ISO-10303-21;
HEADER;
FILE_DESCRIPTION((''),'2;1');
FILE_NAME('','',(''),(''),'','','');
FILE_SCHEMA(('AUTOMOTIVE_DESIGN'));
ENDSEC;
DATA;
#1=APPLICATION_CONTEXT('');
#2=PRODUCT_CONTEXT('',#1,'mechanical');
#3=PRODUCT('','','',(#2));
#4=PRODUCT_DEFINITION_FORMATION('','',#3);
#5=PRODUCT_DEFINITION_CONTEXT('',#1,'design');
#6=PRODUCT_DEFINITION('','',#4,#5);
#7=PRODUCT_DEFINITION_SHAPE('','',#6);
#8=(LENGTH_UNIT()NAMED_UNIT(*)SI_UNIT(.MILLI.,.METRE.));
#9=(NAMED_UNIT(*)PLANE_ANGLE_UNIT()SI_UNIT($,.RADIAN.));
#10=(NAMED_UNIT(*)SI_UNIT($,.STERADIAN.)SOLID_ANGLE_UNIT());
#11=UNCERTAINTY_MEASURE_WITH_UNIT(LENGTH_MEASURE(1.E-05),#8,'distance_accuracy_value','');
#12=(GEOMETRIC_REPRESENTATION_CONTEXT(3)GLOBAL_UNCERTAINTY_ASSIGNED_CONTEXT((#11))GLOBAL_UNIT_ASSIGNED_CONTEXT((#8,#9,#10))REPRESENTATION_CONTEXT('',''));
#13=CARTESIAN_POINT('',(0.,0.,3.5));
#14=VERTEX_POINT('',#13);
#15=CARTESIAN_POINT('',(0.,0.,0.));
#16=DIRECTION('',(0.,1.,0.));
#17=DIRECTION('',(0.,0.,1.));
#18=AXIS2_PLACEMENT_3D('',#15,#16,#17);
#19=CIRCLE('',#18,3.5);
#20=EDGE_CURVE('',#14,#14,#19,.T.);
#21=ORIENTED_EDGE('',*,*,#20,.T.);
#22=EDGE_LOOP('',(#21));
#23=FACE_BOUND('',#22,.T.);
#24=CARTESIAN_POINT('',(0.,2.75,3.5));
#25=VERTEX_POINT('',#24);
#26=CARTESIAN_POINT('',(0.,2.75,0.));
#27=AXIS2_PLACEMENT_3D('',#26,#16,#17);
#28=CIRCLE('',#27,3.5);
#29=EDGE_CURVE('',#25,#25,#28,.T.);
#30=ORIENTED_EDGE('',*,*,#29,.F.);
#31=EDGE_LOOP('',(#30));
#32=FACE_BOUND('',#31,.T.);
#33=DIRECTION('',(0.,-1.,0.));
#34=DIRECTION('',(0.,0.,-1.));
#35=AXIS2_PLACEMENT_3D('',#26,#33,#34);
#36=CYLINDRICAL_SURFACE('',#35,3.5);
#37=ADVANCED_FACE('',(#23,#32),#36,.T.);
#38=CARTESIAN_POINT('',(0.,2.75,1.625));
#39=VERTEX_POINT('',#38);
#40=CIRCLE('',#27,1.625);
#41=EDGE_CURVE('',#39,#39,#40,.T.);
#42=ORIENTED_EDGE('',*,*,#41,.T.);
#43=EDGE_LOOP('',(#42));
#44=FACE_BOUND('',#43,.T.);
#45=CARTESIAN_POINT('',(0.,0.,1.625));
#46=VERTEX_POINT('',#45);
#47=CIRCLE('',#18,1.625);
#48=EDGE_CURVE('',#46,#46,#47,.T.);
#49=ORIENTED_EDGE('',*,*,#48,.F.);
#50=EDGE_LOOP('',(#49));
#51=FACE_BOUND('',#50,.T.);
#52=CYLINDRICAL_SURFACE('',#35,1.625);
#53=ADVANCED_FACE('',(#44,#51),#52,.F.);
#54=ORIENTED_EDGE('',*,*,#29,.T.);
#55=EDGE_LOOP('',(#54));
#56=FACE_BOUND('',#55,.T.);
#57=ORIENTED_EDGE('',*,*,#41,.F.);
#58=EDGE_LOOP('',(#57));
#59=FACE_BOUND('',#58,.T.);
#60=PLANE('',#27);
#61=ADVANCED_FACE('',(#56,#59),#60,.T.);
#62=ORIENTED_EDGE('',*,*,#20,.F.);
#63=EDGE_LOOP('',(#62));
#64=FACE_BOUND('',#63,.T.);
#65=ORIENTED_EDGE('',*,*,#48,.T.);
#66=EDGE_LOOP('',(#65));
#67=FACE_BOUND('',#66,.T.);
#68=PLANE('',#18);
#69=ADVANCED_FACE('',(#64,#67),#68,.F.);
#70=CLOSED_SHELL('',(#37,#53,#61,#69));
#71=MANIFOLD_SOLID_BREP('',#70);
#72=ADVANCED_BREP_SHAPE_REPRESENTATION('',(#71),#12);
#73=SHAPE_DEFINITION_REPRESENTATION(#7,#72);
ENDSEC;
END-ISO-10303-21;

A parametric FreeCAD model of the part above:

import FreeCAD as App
import Part
import Sketcher

V = App.Vector
Q = App.Units.Quantity

doc = App.newDocument("Part")
body = doc.addObject("PartDesign::Body", "Body")

sketch1 = body.newObject("Sketcher::SketchObject", "Sketch")
sketch1.AttachmentSupport = (doc.getObject("XZ_Plane"), [""])
sketch1.MapMode = "FlatFace"
sketch1.addGeometry(Part.Circle(V(0, 0, 0), V(0, 0, 1), 3.5), False)
sketch1.addGeometry(Part.Circle(V(0, 0, 0), V(0, 0, 1), 1.6), False)
sketch1.addConstraint(Sketcher.Constraint("Coincident", 0, 3, -1, 1))
sketch1.addConstraint(Sketcher.Constraint("Coincident", 1, 3, -1, 1))
sketch1.addConstraint(Sketcher.Constraint("Diameter", 0, Q("7 mm")))
sketch1.addConstraint(Sketcher.Constraint("Diameter", 1, Q("3.25 mm")))
pad1 = body.newObject("PartDesign::Pad", "Pad")
pad1.Profile = sketch1
pad1.Length = 2.75
pad1.Reversed = True

doc.recompute()
